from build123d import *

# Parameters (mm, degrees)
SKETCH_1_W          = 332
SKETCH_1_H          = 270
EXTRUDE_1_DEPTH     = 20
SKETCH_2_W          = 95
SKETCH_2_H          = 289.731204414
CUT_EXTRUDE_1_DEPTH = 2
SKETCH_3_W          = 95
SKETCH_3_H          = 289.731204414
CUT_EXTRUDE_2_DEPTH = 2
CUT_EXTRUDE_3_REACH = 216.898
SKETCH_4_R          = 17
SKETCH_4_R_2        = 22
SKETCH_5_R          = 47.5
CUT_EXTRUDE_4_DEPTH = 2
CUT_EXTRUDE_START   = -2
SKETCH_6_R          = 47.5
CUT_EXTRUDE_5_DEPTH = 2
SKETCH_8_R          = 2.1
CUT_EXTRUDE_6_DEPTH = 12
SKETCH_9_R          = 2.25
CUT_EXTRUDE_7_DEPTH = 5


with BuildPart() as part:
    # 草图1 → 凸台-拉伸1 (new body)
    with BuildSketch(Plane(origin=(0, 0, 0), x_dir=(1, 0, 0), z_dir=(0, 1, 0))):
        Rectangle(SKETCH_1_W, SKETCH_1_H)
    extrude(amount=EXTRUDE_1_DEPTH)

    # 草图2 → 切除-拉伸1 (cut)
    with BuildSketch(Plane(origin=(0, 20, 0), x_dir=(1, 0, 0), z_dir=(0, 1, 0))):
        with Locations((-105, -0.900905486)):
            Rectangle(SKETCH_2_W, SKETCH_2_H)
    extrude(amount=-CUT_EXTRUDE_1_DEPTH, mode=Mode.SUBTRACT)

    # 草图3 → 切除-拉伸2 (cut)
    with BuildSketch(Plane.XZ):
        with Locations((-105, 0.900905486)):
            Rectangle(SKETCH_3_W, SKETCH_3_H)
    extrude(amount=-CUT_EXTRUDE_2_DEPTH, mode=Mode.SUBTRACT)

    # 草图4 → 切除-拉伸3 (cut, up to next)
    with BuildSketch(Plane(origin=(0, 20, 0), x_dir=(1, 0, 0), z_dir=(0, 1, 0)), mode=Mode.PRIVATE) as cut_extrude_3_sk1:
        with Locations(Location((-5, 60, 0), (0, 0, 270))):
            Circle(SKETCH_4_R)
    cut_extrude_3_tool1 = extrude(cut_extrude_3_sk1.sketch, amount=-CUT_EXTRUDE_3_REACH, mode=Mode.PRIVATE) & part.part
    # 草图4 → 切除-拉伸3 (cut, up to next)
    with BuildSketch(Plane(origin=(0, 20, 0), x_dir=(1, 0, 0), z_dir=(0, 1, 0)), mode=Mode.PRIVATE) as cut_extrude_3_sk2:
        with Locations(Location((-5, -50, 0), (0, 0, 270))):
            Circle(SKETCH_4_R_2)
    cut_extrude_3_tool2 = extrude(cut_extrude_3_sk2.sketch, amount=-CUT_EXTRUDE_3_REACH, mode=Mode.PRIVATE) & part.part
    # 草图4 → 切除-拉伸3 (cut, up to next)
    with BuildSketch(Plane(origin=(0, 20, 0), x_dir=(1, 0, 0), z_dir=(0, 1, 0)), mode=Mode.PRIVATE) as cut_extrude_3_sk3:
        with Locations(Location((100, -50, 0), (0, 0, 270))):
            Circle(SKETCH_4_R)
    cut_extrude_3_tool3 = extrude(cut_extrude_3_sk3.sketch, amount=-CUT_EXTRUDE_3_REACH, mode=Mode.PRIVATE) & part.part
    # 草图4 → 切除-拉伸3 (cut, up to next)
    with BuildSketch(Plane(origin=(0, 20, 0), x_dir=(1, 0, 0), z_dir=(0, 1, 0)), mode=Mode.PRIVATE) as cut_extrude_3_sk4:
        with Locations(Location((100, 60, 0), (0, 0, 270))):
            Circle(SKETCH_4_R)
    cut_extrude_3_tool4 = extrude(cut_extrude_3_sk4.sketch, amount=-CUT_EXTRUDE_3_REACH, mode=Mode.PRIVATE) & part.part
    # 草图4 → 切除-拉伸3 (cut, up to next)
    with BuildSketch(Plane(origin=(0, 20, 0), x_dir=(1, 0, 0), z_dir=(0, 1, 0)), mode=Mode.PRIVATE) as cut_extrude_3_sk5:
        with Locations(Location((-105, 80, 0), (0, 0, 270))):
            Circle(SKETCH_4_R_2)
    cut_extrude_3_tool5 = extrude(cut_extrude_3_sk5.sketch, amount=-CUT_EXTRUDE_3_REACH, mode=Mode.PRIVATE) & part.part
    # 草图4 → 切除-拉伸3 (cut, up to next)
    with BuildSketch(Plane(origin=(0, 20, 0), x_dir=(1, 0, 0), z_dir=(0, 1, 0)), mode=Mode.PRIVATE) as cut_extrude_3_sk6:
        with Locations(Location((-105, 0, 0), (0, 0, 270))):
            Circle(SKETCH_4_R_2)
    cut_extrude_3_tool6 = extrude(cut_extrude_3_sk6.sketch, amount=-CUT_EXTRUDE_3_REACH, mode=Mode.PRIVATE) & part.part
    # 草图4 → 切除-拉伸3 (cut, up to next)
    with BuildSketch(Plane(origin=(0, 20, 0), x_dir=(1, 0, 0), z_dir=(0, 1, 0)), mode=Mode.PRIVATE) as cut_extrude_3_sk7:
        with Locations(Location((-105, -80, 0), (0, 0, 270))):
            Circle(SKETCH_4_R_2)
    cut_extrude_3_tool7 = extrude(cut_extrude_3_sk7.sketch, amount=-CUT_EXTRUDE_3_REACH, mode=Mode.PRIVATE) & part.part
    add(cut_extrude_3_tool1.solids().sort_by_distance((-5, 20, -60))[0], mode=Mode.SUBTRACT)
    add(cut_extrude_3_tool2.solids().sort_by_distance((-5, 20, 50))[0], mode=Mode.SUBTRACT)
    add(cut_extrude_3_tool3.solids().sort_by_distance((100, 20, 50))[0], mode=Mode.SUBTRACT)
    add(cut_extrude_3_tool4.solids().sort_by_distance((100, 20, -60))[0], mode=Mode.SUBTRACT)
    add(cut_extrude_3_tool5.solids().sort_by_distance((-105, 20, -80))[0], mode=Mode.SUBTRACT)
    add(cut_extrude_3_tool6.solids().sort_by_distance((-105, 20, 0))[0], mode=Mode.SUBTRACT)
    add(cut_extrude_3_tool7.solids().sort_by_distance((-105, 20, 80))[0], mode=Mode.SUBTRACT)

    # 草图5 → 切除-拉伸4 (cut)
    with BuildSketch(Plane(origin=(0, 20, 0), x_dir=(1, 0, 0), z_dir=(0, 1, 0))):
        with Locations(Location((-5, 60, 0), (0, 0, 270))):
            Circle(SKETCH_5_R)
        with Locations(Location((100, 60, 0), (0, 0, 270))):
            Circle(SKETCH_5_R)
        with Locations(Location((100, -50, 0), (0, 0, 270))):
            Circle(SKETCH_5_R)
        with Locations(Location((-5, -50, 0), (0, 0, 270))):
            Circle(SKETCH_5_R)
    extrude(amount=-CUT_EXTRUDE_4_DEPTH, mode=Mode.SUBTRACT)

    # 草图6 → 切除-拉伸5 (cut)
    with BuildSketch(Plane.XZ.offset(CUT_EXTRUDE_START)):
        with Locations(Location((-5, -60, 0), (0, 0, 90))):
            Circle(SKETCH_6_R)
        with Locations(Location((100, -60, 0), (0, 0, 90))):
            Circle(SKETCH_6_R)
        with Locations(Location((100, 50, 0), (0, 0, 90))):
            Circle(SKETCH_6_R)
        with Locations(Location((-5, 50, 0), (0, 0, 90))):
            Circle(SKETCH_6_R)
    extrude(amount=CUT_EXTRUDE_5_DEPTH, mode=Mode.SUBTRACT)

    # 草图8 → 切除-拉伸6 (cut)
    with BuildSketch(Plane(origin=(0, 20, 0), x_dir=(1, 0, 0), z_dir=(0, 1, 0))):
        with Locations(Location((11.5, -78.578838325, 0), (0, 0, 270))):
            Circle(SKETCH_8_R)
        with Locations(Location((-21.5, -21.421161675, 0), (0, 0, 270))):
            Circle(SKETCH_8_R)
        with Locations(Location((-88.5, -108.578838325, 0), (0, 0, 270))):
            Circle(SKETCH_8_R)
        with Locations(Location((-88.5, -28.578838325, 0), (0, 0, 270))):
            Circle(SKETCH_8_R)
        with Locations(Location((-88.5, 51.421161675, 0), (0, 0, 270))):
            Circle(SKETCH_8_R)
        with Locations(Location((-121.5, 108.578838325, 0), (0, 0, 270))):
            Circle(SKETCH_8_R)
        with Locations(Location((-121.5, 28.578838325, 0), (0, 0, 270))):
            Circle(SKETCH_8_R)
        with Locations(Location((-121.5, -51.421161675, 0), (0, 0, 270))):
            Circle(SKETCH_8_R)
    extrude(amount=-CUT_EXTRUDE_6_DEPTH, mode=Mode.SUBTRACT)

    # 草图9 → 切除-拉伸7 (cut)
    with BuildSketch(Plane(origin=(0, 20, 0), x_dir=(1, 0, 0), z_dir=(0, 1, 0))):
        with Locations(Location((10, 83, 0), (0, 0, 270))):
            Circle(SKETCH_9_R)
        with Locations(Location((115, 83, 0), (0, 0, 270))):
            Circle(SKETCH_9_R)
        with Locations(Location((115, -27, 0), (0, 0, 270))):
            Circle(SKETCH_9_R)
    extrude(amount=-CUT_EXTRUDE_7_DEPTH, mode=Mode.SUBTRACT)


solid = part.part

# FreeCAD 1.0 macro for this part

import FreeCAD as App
import Part
import Sketcher
Q = App.Units.Quantity


def add_polygon(sketch, points):
    """Adds a closed chain of lines whose ends are joined by coincident constraints."""
    first, n = sketch.GeometryCount, len(points)
    for a, b in zip(points, points[1:] + points[:1]):
        sketch.addGeometry(Part.LineSegment(App.Vector(*a, 0), App.Vector(*b, 0)), False)
    for i in range(n):
        sketch.addConstraint(Sketcher.Constraint("Coincident", first + i, 2, first + (i + 1) % n, 1))

doc = App.newDocument("Part")
body = doc.addObject("PartDesign::Body", "Body")

sketch1 = doc.addObject("Sketcher::SketchObject", "Sketch")
body.addObject(sketch1)
sketch1.AttachmentSupport = (doc.XZ_Plane, [""])
sketch1.MapMode = "FlatFace"
add_polygon(sketch1, [(-166, -135), (-166, 135), (166, 135), (166, -135)])
sketch1.addConstraint([
    Sketcher.Constraint("Vertical", 0),
    Sketcher.Constraint("Horizontal", 1),
    Sketcher.Constraint("Vertical", 2),
    Sketcher.Constraint("Horizontal", 3),
    Sketcher.Constraint("Symmetric", 0, 2, 2, 2, -1, 1),
    Sketcher.Constraint("DistanceX", 1, 1, 1, 2, Q("332 mm")),
    Sketcher.Constraint("DistanceY", 0, 1, 0, 2, Q("270 mm")),
])
pad1 = doc.addObject("PartDesign::Pad", "Pad")
body.addObject(pad1)
pad1.Profile = sketch1
pad1.Length = 20
pad1.Reversed = True

sketch2 = doc.addObject("Sketcher::SketchObject", "Sketch001")
body.addObject(sketch2)
sketch2.AttachmentSupport = (doc.XZ_Plane, [""])
sketch2.MapMode = "FlatFace"
sketch2.AttachmentOffset = App.Placement(App.Vector(0, 0, -20), App.Rotation())
add_polygon(sketch2, [(-152.5, -143.964697), (-152.5, 145.766508), (-57.5, 145.766508), (-57.5, -143.964697)])
sketch2.addConstraint([
    Sketcher.Constraint("Vertical", 0),
    Sketcher.Constraint("Horizontal", 1),
    Sketcher.Constraint("Vertical", 2),
    Sketcher.Constraint("Horizontal", 3),
    Sketcher.Constraint("DistanceX", 1, 1, 1, 2, Q("95 mm")),
    Sketcher.Constraint("DistanceX", 0, 2, -1, 1, Q("152.5 mm")),
    Sketcher.Constraint("DistanceY", 0, 1, 0, 2, Q("289.731204 mm")),
    Sketcher.Constraint("DistanceY", -1, 1, 0, 2, Q("145.766508 mm")),
])
pocket1 = doc.addObject("PartDesign::Pocket", "Pocket")
body.addObject(pocket1)
pocket1.Profile = sketch2
pocket1.Length = 2
pocket1.Reversed = True

sketch3 = doc.addObject("Sketcher::SketchObject", "Sketch002")
body.addObject(sketch3)
sketch3.AttachmentSupport = (doc.XZ_Plane, [""])
sketch3.MapMode = "FlatFace"
add_polygon(sketch3, [(-152.5, 145.766508), (-152.5, -143.964697), (-57.5, -143.964697), (-57.5, 145.766508)])
sketch3.addConstraint([
    Sketcher.Constraint("Vertical", 0),
    Sketcher.Constraint("Horizontal", 1),
    Sketcher.Constraint("Vertical", 2),
    Sketcher.Constraint("Horizontal", 3),
    Sketcher.Constraint("DistanceX", 1, 1, 1, 2, Q("95 mm")),
    Sketcher.Constraint("DistanceX", 0, 2, -1, 1, Q("152.5 mm")),
    Sketcher.Constraint("DistanceY", 0, 2, 0, 1, Q("289.731204 mm")),
    Sketcher.Constraint("DistanceY", 0, 2, -1, 1, Q("143.964697 mm")),
])
pocket2 = doc.addObject("PartDesign::Pocket", "Pocket001")
body.addObject(pocket2)
pocket2.Profile = sketch3
pocket2.Length = 2

sketch4 = doc.addObject("Sketcher::SketchObject", "Sketch003")
body.addObject(sketch4)
sketch4.AttachmentSupport = (doc.XZ_Plane, [""])
sketch4.MapMode = "FlatFace"
sketch4.AttachmentOffset = App.Placement(App.Vector(0, 0, -20), App.Rotation())
sketch4.addGeometry(Part.Circle(App.Vector(-5, -60, 0), App.Vector(0, 0, 1), 17), False)
sketch4.addConstraint([
    Sketcher.Constraint("Diameter", 0, Q("34 mm")),
    Sketcher.Constraint("DistanceX", 0, 3, -1, 1, Q("5 mm")),
    Sketcher.Constraint("DistanceY", 0, 3, -1, 1, Q("60 mm")),
])
pocket3 = doc.addObject("PartDesign::Pocket", "Pocket002")
body.addObject(pocket3)
pocket3.Profile = sketch4
pocket3.Type = "UpToFirst"
pocket3.Reversed = True

sketch5 = doc.addObject("Sketcher::SketchObject", "Sketch004")
body.addObject(sketch5)
sketch5.AttachmentSupport = (doc.XZ_Plane, [""])
sketch5.MapMode = "FlatFace"
sketch5.AttachmentOffset = App.Placement(App.Vector(0, 0, -20), App.Rotation())
sketch5.addGeometry(Part.Circle(App.Vector(-5, 50, 0), App.Vector(0, 0, 1), 22), False)
sketch5.addConstraint([
    Sketcher.Constraint("Diameter", 0, Q("44 mm")),
    Sketcher.Constraint("DistanceX", 0, 3, -1, 1, Q("5 mm")),
    Sketcher.Constraint("DistanceY", -1, 1, 0, 3, Q("50 mm")),
])
pocket4 = doc.addObject("PartDesign::Pocket", "Pocket003")
body.addObject(pocket4)
pocket4.Profile = sketch5
pocket4.Type = "UpToFirst"
pocket4.Reversed = True

sketch6 = doc.addObject("Sketcher::SketchObject", "Sketch005")
body.addObject(sketch6)
sketch6.AttachmentSupport = (doc.XZ_Plane, [""])
sketch6.MapMode = "FlatFace"
sketch6.AttachmentOffset = App.Placement(App.Vector(0, 0, -20), App.Rotation())
sketch6.addGeometry(Part.Circle(App.Vector(100, 50, 0), App.Vector(0, 0, 1), 17), False)
sketch6.addConstraint([
    Sketcher.Constraint("Diameter", 0, Q("34 mm")),
    Sketcher.Constraint("DistanceX", -1, 1, 0, 3, Q("100 mm")),
    Sketcher.Constraint("DistanceY", -1, 1, 0, 3, Q("50 mm")),
])
pocket5 = doc.addObject("PartDesign::Pocket", "Pocket004")
body.addObject(pocket5)
pocket5.Profile = sketch6
pocket5.Type = "UpToFirst"
pocket5.Reversed = True

sketch7 = doc.addObject("Sketcher::SketchObject", "Sketch006")
body.addObject(sketch7)
sketch7.AttachmentSupport = (doc.XZ_Plane, [""])
sketch7.MapMode = "FlatFace"
sketch7.AttachmentOffset = App.Placement(App.Vector(0, 0, -20), App.Rotation())
sketch7.addGeometry(Part.Circle(App.Vector(100, -60, 0), App.Vector(0, 0, 1), 17), False)
sketch7.addConstraint([
    Sketcher.Constraint("Diameter", 0, Q("34 mm")),
    Sketcher.Constraint("DistanceX", -1, 1, 0, 3, Q("100 mm")),
    Sketcher.Constraint("DistanceY", 0, 3, -1, 1, Q("60 mm")),
])
pocket6 = doc.addObject("PartDesign::Pocket", "Pocket005")
body.addObject(pocket6)
pocket6.Profile = sketch7
pocket6.Type = "UpToFirst"
pocket6.Reversed = True

sketch8 = doc.addObject("Sketcher::SketchObject", "Sketch007")
body.addObject(sketch8)
sketch8.AttachmentSupport = (doc.XZ_Plane, [""])
sketch8.MapMode = "FlatFace"
sketch8.AttachmentOffset = App.Placement(App.Vector(0, 0, -20), App.Rotation())
sketch8.addGeometry(Part.Circle(App.Vector(-105, -80, 0), App.Vector(0, 0, 1), 22), False)
sketch8.addConstraint([
    Sketcher.Constraint("Diameter", 0, Q("44 mm")),
    Sketcher.Constraint("DistanceX", 0, 3, -1, 1, Q("105 mm")),
    Sketcher.Constraint("DistanceY", 0, 3, -1, 1, Q("80 mm")),
])
pocket7 = doc.addObject("PartDesign::Pocket", "Pocket006")
body.addObject(pocket7)
pocket7.Profile = sketch8
pocket7.Length = 18
pocket7.Reversed = True

sketch9 = doc.addObject("Sketcher::SketchObject", "Sketch008")
body.addObject(sketch9)
sketch9.AttachmentSupport = (doc.XZ_Plane, [""])
sketch9.MapMode = "FlatFace"
sketch9.AttachmentOffset = App.Placement(App.Vector(0, 0, -20), App.Rotation())
sketch9.addGeometry(Part.Circle(App.Vector(-105, 0, 0), App.Vector(0, 0, 1), 22), False)
sketch9.addConstraint([
    Sketcher.Constraint("PointOnObject", 0, 3, -1),
    Sketcher.Constraint("Diameter", 0, Q("44 mm")),
    Sketcher.Constraint("DistanceX", 0, 3, -1, 1, Q("105 mm")),
])
pocket8 = doc.addObject("PartDesign::Pocket", "Pocket007")
body.addObject(pocket8)
pocket8.Profile = sketch9
pocket8.Length = 18
pocket8.Reversed = True

sketch10 = doc.addObject("Sketcher::SketchObject", "Sketch009")
body.addObject(sketch10)
sketch10.AttachmentSupport = (doc.XZ_Plane, [""])
sketch10.MapMode = "FlatFace"
sketch10.AttachmentOffset = App.Placement(App.Vector(0, 0, -20), App.Rotation())
sketch10.addGeometry(Part.Circle(App.Vector(-105, 80, 0), App.Vector(0, 0, 1), 22), False)
sketch10.addConstraint([
    Sketcher.Constraint("Diameter", 0, Q("44 mm")),
    Sketcher.Constraint("DistanceX", 0, 3, -1, 1, Q("105 mm")),
    Sketcher.Constraint("DistanceY", -1, 1, 0, 3, Q("80 mm")),
])
pocket9 = doc.addObject("PartDesign::Pocket", "Pocket008")
body.addObject(pocket9)
pocket9.Profile = sketch10
pocket9.Length = 18
pocket9.Reversed = True

sketch11 = doc.addObject("Sketcher::SketchObject", "Sketch010")
body.addObject(sketch11)
sketch11.AttachmentSupport = (doc.XZ_Plane, [""])
sketch11.MapMode = "FlatFace"
sketch11.AttachmentOffset = App.Placement(App.Vector(0, 0, -20), App.Rotation())
sketch11.addGeometry([
    Part.Circle(App.Vector(-5, -60, 0), App.Vector(0, 0, 1), 47.5),
    Part.Circle(App.Vector(100, -60, 0), App.Vector(0, 0, 1), 47.5),
    Part.Circle(App.Vector(100, 50, 0), App.Vector(0, 0, 1), 47.5),
    Part.Circle(App.Vector(-5, 50, 0), App.Vector(0, 0, 1), 47.5),
], False)
sketch11.addConstraint([
    Sketcher.Constraint("Equal", 0, 1),
    Sketcher.Constraint("Equal", 1, 2),
    Sketcher.Constraint("Equal", 2, 3),
    Sketcher.Constraint("Horizontal", 0, 3, 1, 3),
    Sketcher.Constraint("Horizontal", 2, 3, 3, 3),
    Sketcher.Constraint("Vertical", 1, 3, 2, 3),
    Sketcher.Constraint("Vertical", 0, 3, 3, 3),
    Sketcher.Constraint("Diameter", 0, Q("95 mm")),
    Sketcher.Constraint("DistanceX", 0, 3, -1, 1, Q("5 mm")),
    Sketcher.Constraint("DistanceY", 0, 3, -1, 1, Q("60 mm")),
    Sketcher.Constraint("DistanceX", -1, 1, 1, 3, Q("100 mm")),
    Sketcher.Constraint("DistanceY", -1, 1, 2, 3, Q("50 mm")),
])
pocket10 = doc.addObject("PartDesign::Pocket", "Pocket009")
body.addObject(pocket10)
pocket10.Profile = sketch11
pocket10.Length = 2
pocket10.Reversed = True

sketch12 = doc.addObject("Sketcher::SketchObject", "Sketch011")
body.addObject(sketch12)
sketch12.AttachmentSupport = (doc.XZ_Plane, [""])
sketch12.MapMode = "FlatFace"
sketch12.AttachmentOffset = App.Placement(App.Vector(0, 0, -2), App.Rotation())
sketch12.addGeometry([
    Part.Circle(App.Vector(-5, -60, 0), App.Vector(0, 0, 1), 47.5),
    Part.Circle(App.Vector(100, -60, 0), App.Vector(0, 0, 1), 47.5),
    Part.Circle(App.Vector(100, 50, 0), App.Vector(0, 0, 1), 47.5),
    Part.Circle(App.Vector(-5, 50, 0), App.Vector(0, 0, 1), 47.5),
], False)
sketch12.addConstraint([
    Sketcher.Constraint("Equal", 0, 1),
    Sketcher.Constraint("Equal", 1, 2),
    Sketcher.Constraint("Equal", 2, 3),
    Sketcher.Constraint("Horizontal", 0, 3, 1, 3),
    Sketcher.Constraint("Horizontal", 2, 3, 3, 3),
    Sketcher.Constraint("Vertical", 1, 3, 2, 3),
    Sketcher.Constraint("Vertical", 0, 3, 3, 3),
    Sketcher.Constraint("Diameter", 0, Q("95 mm")),
    Sketcher.Constraint("DistanceX", 0, 3, -1, 1, Q("5 mm")),
    Sketcher.Constraint("DistanceY", 0, 3, -1, 1, Q("60 mm")),
    Sketcher.Constraint("DistanceX", -1, 1, 1, 3, Q("100 mm")),
    Sketcher.Constraint("DistanceY", -1, 1, 2, 3, Q("50 mm")),
])
pocket11 = doc.addObject("PartDesign::Pocket", "Pocket010")
body.addObject(pocket11)
pocket11.Profile = sketch12
pocket11.Length = 2
pocket11.Reversed = True

sketch13 = doc.addObject("Sketcher::SketchObject", "Sketch012")
body.addObject(sketch13)
sketch13.AttachmentSupport = (doc.XZ_Plane, [""])
sketch13.MapMode = "FlatFace"
sketch13.AttachmentOffset = App.Placement(App.Vector(0, 0, -20), App.Rotation())
sketch13.addGeometry([
    Part.Circle(App.Vector(11.5, 78.578838, 0), App.Vector(0, 0, 1), 2.1),
    Part.Circle(App.Vector(-21.5, 21.421162, 0), App.Vector(0, 0, 1), 2.1),
    Part.Circle(App.Vector(-88.5, 108.578838, 0), App.Vector(0, 0, 1), 2.1),
    Part.Circle(App.Vector(-88.5, 28.578838, 0), App.Vector(0, 0, 1), 2.1),
    Part.Circle(App.Vector(-88.5, -51.421162, 0), App.Vector(0, 0, 1), 2.1),
    Part.Circle(App.Vector(-121.5, -108.578838, 0), App.Vector(0, 0, 1), 2.1),
    Part.Circle(App.Vector(-121.5, -28.578838, 0), App.Vector(0, 0, 1), 2.1),
    Part.Circle(App.Vector(-121.5, 51.421162, 0), App.Vector(0, 0, 1), 2.1),
], False)
sketch13.addConstraint([
    Sketcher.Constraint("Equal", 0, 1),
    Sketcher.Constraint("Equal", 1, 2),
    Sketcher.Constraint("Equal", 2, 3),
    Sketcher.Constraint("Equal", 3, 4),
    Sketcher.Constraint("Equal", 4, 5),
    Sketcher.Constraint("Equal", 5, 6),
    Sketcher.Constraint("Equal", 6, 7),
    Sketcher.Constraint("Vertical", 2, 3, 3, 3),
    Sketcher.Constraint("Vertical", 3, 3, 4, 3),
    Sketcher.Constraint("Vertical", 5, 3, 6, 3),
    Sketcher.Constraint("Vertical", 6, 3, 7, 3),
    Sketcher.Constraint("Diameter", 0, Q("4.2 mm")),
    Sketcher.Constraint("DistanceX", 1, 3, 0, 3, Q("33 mm")),
    Sketcher.Constraint("DistanceX", 2, 3, 0, 3, Q("100 mm")),
    Sketcher.Constraint("DistanceY", 0, 3, 2, 3, Q("30 mm")),
    Sketcher.Constraint("DistanceY", 3, 3, 2, 3, Q("80 mm")),
    Sketcher.Constraint("DistanceY", 4, 3, 3, 3, Q("80 mm")),
    Sketcher.Constraint("DistanceX", 5, 3, 4, 3, Q("33 mm")),
    Sketcher.Constraint("DistanceY", 5, 3, 1, 3, Q("130 mm")),
    Sketcher.Constraint("DistanceY", 5, 3, 6, 3, Q("80 mm")),
    Sketcher.Constraint("DistanceY", 6, 3, 7, 3, Q("80 mm")),
    Sketcher.Constraint("DistanceX", -1, 1, 0, 3, Q("11.5 mm")),
    Sketcher.Constraint("DistanceY", -1, 1, 0, 3, Q("78.578838 mm")),
    Sketcher.Constraint("DistanceY", -1, 1, 1, 3, Q("21.421162 mm")),
])
pocket12 = doc.addObject("PartDesign::Pocket", "Pocket011")
body.addObject(pocket12)
pocket12.Profile = sketch13
pocket12.Length = 12
pocket12.Reversed = True

sketch14 = doc.addObject("Sketcher::SketchObject", "Sketch013")
body.addObject(sketch14)
sketch14.AttachmentSupport = (doc.XZ_Plane, [""])
sketch14.MapMode = "FlatFace"
sketch14.AttachmentOffset = App.Placement(App.Vector(0, 0, -20), App.Rotation())
sketch14.addGeometry([
    Part.Circle(App.Vector(10, -83, 0), App.Vector(0, 0, 1), 2.25),
    Part.Circle(App.Vector(115, -83, 0), App.Vector(0, 0, 1), 2.25),
    Part.Circle(App.Vector(115, 27, 0), App.Vector(0, 0, 1), 2.25),
], False)
sketch14.addConstraint([
    Sketcher.Constraint("Equal", 0, 1),
    Sketcher.Constraint("Equal", 1, 2),
    Sketcher.Constraint("Horizontal", 0, 3, 1, 3),
    Sketcher.Constraint("Vertical", 1, 3, 2, 3),
    Sketcher.Constraint("Diameter", 0, Q("4.5 mm")),
    Sketcher.Constraint("DistanceX", -1, 1, 0, 3, Q("10 mm")),
    Sketcher.Constraint("DistanceY", 0, 3, -1, 1, Q("83 mm")),
    Sketcher.Constraint("DistanceX", -1, 1, 1, 3, Q("115 mm")),
    Sketcher.Constraint("DistanceY", -1, 1, 2, 3, Q("27 mm")),
])
pocket13 = doc.addObject("PartDesign::Pocket", "Pocket012")
body.addObject(pocket13)
pocket13.Profile = sketch14
pocket13.Length = 5
pocket13.Reversed = True

doc.recompute()
